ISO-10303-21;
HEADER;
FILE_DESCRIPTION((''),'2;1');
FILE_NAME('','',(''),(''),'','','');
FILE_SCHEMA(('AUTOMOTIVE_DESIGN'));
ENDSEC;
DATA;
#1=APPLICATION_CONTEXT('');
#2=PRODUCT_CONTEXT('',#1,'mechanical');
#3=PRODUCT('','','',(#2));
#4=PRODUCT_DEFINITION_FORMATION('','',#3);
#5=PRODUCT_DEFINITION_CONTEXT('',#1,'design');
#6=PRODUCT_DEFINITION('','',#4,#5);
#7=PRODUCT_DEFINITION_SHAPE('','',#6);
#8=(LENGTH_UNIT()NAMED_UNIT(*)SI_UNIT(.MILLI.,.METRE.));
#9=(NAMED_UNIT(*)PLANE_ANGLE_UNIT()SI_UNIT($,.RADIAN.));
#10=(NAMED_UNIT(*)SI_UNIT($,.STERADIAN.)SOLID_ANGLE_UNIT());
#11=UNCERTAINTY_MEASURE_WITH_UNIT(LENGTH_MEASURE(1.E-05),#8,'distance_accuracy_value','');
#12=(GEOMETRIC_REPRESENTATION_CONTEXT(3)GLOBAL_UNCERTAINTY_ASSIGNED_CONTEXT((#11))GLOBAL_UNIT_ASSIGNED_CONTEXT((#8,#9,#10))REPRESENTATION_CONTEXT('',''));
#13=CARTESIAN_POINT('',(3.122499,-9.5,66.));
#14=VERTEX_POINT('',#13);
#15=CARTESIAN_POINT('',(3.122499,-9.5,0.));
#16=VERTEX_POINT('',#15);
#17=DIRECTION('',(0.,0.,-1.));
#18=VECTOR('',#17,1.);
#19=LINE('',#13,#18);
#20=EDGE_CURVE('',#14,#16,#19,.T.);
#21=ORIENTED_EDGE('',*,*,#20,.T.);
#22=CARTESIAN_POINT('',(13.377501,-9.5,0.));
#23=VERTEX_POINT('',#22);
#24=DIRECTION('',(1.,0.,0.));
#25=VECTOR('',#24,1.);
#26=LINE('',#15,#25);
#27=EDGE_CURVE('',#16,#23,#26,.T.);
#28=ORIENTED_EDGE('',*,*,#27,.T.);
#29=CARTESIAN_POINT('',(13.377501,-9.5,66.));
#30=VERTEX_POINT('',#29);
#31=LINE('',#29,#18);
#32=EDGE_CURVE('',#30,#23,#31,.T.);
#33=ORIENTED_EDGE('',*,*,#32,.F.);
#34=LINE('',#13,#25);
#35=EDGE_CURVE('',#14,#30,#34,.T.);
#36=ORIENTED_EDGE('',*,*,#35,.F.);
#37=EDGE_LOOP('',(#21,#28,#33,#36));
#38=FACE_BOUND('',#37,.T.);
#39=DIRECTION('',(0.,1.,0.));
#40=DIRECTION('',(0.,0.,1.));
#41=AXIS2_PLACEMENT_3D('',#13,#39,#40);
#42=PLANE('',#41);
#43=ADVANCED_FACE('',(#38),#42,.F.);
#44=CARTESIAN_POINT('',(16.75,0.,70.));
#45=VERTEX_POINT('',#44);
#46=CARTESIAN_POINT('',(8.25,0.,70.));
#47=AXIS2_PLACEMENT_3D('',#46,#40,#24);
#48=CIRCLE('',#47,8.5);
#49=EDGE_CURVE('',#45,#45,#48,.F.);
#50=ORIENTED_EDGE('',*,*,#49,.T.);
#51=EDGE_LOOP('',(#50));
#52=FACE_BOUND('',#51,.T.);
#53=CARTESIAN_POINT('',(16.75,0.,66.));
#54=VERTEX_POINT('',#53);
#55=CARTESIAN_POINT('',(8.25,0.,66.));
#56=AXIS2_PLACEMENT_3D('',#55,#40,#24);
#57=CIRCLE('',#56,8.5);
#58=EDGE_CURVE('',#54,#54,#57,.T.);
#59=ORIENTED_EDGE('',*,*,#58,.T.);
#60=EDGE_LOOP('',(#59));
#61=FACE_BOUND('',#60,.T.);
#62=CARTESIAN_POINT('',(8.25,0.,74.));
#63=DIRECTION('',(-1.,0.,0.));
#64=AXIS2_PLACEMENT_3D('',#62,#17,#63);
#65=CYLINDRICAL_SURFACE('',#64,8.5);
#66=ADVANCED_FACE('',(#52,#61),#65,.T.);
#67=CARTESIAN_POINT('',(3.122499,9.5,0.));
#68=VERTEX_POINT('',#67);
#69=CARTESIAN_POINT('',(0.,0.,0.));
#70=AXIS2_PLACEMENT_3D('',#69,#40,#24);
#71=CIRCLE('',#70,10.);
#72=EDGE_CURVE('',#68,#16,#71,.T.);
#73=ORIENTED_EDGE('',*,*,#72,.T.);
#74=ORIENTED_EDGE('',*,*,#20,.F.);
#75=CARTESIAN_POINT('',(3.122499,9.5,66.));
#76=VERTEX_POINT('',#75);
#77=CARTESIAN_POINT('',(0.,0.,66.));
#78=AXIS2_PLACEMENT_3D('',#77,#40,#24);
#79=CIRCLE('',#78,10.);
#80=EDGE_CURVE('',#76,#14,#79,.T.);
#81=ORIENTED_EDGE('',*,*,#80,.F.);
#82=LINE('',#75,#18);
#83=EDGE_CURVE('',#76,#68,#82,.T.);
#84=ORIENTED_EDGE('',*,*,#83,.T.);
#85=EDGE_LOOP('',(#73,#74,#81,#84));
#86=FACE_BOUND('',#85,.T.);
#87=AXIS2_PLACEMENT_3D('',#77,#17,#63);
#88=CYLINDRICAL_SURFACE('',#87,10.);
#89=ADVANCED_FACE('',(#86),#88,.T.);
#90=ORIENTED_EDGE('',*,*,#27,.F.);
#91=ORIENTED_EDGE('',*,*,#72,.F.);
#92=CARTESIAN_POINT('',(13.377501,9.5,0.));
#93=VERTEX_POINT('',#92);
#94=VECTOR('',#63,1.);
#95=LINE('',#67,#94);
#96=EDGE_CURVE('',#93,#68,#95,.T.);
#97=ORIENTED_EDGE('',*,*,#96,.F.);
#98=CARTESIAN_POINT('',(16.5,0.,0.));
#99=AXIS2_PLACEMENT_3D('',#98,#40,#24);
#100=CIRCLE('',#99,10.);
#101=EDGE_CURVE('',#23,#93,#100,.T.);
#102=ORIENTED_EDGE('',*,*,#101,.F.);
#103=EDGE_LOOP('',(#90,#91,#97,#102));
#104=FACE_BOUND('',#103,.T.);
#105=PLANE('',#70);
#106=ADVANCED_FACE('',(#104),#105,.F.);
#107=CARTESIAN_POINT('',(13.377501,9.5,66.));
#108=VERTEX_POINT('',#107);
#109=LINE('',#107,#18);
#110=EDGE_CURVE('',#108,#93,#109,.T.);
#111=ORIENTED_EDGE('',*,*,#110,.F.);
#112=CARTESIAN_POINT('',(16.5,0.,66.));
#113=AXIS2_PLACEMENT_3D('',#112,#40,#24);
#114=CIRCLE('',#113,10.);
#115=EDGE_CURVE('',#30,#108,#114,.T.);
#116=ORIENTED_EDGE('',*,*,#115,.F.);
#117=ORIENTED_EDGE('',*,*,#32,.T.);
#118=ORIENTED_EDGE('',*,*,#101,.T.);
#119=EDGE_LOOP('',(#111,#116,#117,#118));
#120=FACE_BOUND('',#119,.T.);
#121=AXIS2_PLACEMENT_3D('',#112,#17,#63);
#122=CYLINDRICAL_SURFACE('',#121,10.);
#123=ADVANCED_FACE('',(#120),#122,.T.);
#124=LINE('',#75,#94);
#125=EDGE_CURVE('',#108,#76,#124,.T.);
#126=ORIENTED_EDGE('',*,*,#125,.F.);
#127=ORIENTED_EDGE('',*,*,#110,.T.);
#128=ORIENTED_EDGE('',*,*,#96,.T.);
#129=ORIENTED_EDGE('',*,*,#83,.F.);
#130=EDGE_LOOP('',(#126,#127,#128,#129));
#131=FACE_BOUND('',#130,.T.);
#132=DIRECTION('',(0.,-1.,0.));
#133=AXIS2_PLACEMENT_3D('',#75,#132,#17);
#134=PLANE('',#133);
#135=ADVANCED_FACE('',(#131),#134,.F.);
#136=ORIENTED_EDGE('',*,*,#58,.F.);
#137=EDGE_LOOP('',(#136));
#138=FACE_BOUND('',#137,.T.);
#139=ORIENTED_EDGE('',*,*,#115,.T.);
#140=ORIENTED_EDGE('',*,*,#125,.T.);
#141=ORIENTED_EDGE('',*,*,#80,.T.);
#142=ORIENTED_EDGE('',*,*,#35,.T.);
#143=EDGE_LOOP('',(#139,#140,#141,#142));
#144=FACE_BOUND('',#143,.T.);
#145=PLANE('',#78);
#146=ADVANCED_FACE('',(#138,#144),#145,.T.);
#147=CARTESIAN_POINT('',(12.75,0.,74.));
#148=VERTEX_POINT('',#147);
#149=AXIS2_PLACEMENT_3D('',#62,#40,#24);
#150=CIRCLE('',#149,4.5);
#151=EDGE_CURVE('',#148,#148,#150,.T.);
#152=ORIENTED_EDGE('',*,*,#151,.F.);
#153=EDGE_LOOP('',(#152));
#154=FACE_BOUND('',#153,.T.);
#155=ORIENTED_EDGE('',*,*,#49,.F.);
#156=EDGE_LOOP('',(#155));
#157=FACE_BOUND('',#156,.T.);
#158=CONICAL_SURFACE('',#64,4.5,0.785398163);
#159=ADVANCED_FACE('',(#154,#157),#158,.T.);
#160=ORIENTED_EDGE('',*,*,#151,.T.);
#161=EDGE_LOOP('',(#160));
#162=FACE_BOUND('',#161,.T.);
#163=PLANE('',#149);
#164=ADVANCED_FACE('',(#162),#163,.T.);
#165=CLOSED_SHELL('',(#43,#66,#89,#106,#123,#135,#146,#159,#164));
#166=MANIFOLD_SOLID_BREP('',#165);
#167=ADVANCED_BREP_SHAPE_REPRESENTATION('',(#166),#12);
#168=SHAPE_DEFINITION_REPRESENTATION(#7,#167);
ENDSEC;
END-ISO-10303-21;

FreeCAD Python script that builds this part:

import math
import FreeCAD as App
import Part
import Sketcher
from FreeCAD import Vector
Q = App.Units.Quantity


def edges_at(feature, points):
    """Names of the edges that pass closest to the given points."""
    edges = feature.Shape.Edges
    near = lambda p: min(range(len(edges)), key=lambda i: edges[i].distToShape(Part.Vertex(*p))[0])
    return sorted({f"Edge{near(p) + 1}" for p in points})

doc = App.newDocument("Part")
body = doc.addObject("PartDesign::Body", "Body")

# Sketch on XY plane
sketch1 = body.newObject("Sketcher::SketchObject", "Sketch")
sketch1.AttachmentSupport = (doc.getObject("XY_Plane"), [""])
sketch1.MapMode = "FlatFace"
sketch1.addGeometry(Part.LineSegment(Vector(13.377501, 9.5, 0), Vector(3.122499, 9.5, 0)), False)
sketch1.addGeometry(Part.ArcOfCircle(Part.Circle(Vector(0, 0, 0), Vector(0, 0, 1), 10), math.radians(71.805128), math.radians(288.194872)), False)
sketch1.addGeometry(Part.LineSegment(Vector(3.122499, -9.5, 0), Vector(13.377501, -9.5, 0)), False)
sketch1.addGeometry(Part.ArcOfCircle(Part.Circle(Vector(16.5, 0, 0), Vector(0, 0, 1), 10), math.radians(-108.194872), math.radians(108.194872)), False)
sketch1.addConstraint(Sketcher.Constraint("Coincident", 0, 2, 1, 1))
sketch1.addConstraint(Sketcher.Constraint("Coincident", 1, 2, 2, 1))
sketch1.addConstraint(Sketcher.Constraint("Coincident", 2, 2, 3, 1))
sketch1.addConstraint(Sketcher.Constraint("Coincident", 3, 2, 0, 1))
sketch1.addConstraint(Sketcher.Constraint("Horizontal", 0))
sketch1.addConstraint(Sketcher.Constraint("Horizontal", 2))
sketch1.addConstraint(Sketcher.Constraint("Coincident", 1, 3, -1, 1))
sketch1.addConstraint(Sketcher.Constraint("Equal", 1, 3))
sketch1.addConstraint(Sketcher.Constraint("Symmetric", 2, 2, 3, 2, -1))
sketch1.addConstraint(Sketcher.Constraint("Radius", 1, Q("10 mm")))
sketch1.addConstraint(Sketcher.Constraint("DistanceY", 1, 2, 0, 2, Q("19 mm")))
sketch1.addConstraint(Sketcher.Constraint("DistanceX", -1, 1, 3, 3, Q("16.5 mm")))
pad1 = body.newObject("PartDesign::Pad", "Pad")
pad1.Profile = sketch1
pad1.Length = 66

# Sketch on XY plane
sketch2 = body.newObject("Sketcher::SketchObject", "Sketch001")
sketch2.AttachmentSupport = (doc.getObject("XY_Plane"), [""])
sketch2.MapMode = "FlatFace"
sketch2.AttachmentOffset = App.Placement(Vector(0, 0, 66), App.Rotation())
sketch2.addGeometry(Part.Circle(Vector(8.25, 0, 0), Vector(0, 0, 1), 8.5), False)
sketch2.addConstraint(Sketcher.Constraint("PointOnObject", 0, 3, -1))
sketch2.addConstraint(Sketcher.Constraint("Diameter", 0, Q("17 mm")))
sketch2.addConstraint(Sketcher.Constraint("DistanceX", -1, 1, 0, 3, Q("8.25 mm")))
pad2 = body.newObject("PartDesign::Pad", "Pad001")
pad2.Profile = sketch2
pad2.Length = 8
doc.recompute()

chamfer = body.newObject("PartDesign::Chamfer", "Chamfer")
chamfer.Base = (pad2, edges_at(pad2, [(-0.25, 0, 74)]))
chamfer.Size = 4

doc.recompute()
